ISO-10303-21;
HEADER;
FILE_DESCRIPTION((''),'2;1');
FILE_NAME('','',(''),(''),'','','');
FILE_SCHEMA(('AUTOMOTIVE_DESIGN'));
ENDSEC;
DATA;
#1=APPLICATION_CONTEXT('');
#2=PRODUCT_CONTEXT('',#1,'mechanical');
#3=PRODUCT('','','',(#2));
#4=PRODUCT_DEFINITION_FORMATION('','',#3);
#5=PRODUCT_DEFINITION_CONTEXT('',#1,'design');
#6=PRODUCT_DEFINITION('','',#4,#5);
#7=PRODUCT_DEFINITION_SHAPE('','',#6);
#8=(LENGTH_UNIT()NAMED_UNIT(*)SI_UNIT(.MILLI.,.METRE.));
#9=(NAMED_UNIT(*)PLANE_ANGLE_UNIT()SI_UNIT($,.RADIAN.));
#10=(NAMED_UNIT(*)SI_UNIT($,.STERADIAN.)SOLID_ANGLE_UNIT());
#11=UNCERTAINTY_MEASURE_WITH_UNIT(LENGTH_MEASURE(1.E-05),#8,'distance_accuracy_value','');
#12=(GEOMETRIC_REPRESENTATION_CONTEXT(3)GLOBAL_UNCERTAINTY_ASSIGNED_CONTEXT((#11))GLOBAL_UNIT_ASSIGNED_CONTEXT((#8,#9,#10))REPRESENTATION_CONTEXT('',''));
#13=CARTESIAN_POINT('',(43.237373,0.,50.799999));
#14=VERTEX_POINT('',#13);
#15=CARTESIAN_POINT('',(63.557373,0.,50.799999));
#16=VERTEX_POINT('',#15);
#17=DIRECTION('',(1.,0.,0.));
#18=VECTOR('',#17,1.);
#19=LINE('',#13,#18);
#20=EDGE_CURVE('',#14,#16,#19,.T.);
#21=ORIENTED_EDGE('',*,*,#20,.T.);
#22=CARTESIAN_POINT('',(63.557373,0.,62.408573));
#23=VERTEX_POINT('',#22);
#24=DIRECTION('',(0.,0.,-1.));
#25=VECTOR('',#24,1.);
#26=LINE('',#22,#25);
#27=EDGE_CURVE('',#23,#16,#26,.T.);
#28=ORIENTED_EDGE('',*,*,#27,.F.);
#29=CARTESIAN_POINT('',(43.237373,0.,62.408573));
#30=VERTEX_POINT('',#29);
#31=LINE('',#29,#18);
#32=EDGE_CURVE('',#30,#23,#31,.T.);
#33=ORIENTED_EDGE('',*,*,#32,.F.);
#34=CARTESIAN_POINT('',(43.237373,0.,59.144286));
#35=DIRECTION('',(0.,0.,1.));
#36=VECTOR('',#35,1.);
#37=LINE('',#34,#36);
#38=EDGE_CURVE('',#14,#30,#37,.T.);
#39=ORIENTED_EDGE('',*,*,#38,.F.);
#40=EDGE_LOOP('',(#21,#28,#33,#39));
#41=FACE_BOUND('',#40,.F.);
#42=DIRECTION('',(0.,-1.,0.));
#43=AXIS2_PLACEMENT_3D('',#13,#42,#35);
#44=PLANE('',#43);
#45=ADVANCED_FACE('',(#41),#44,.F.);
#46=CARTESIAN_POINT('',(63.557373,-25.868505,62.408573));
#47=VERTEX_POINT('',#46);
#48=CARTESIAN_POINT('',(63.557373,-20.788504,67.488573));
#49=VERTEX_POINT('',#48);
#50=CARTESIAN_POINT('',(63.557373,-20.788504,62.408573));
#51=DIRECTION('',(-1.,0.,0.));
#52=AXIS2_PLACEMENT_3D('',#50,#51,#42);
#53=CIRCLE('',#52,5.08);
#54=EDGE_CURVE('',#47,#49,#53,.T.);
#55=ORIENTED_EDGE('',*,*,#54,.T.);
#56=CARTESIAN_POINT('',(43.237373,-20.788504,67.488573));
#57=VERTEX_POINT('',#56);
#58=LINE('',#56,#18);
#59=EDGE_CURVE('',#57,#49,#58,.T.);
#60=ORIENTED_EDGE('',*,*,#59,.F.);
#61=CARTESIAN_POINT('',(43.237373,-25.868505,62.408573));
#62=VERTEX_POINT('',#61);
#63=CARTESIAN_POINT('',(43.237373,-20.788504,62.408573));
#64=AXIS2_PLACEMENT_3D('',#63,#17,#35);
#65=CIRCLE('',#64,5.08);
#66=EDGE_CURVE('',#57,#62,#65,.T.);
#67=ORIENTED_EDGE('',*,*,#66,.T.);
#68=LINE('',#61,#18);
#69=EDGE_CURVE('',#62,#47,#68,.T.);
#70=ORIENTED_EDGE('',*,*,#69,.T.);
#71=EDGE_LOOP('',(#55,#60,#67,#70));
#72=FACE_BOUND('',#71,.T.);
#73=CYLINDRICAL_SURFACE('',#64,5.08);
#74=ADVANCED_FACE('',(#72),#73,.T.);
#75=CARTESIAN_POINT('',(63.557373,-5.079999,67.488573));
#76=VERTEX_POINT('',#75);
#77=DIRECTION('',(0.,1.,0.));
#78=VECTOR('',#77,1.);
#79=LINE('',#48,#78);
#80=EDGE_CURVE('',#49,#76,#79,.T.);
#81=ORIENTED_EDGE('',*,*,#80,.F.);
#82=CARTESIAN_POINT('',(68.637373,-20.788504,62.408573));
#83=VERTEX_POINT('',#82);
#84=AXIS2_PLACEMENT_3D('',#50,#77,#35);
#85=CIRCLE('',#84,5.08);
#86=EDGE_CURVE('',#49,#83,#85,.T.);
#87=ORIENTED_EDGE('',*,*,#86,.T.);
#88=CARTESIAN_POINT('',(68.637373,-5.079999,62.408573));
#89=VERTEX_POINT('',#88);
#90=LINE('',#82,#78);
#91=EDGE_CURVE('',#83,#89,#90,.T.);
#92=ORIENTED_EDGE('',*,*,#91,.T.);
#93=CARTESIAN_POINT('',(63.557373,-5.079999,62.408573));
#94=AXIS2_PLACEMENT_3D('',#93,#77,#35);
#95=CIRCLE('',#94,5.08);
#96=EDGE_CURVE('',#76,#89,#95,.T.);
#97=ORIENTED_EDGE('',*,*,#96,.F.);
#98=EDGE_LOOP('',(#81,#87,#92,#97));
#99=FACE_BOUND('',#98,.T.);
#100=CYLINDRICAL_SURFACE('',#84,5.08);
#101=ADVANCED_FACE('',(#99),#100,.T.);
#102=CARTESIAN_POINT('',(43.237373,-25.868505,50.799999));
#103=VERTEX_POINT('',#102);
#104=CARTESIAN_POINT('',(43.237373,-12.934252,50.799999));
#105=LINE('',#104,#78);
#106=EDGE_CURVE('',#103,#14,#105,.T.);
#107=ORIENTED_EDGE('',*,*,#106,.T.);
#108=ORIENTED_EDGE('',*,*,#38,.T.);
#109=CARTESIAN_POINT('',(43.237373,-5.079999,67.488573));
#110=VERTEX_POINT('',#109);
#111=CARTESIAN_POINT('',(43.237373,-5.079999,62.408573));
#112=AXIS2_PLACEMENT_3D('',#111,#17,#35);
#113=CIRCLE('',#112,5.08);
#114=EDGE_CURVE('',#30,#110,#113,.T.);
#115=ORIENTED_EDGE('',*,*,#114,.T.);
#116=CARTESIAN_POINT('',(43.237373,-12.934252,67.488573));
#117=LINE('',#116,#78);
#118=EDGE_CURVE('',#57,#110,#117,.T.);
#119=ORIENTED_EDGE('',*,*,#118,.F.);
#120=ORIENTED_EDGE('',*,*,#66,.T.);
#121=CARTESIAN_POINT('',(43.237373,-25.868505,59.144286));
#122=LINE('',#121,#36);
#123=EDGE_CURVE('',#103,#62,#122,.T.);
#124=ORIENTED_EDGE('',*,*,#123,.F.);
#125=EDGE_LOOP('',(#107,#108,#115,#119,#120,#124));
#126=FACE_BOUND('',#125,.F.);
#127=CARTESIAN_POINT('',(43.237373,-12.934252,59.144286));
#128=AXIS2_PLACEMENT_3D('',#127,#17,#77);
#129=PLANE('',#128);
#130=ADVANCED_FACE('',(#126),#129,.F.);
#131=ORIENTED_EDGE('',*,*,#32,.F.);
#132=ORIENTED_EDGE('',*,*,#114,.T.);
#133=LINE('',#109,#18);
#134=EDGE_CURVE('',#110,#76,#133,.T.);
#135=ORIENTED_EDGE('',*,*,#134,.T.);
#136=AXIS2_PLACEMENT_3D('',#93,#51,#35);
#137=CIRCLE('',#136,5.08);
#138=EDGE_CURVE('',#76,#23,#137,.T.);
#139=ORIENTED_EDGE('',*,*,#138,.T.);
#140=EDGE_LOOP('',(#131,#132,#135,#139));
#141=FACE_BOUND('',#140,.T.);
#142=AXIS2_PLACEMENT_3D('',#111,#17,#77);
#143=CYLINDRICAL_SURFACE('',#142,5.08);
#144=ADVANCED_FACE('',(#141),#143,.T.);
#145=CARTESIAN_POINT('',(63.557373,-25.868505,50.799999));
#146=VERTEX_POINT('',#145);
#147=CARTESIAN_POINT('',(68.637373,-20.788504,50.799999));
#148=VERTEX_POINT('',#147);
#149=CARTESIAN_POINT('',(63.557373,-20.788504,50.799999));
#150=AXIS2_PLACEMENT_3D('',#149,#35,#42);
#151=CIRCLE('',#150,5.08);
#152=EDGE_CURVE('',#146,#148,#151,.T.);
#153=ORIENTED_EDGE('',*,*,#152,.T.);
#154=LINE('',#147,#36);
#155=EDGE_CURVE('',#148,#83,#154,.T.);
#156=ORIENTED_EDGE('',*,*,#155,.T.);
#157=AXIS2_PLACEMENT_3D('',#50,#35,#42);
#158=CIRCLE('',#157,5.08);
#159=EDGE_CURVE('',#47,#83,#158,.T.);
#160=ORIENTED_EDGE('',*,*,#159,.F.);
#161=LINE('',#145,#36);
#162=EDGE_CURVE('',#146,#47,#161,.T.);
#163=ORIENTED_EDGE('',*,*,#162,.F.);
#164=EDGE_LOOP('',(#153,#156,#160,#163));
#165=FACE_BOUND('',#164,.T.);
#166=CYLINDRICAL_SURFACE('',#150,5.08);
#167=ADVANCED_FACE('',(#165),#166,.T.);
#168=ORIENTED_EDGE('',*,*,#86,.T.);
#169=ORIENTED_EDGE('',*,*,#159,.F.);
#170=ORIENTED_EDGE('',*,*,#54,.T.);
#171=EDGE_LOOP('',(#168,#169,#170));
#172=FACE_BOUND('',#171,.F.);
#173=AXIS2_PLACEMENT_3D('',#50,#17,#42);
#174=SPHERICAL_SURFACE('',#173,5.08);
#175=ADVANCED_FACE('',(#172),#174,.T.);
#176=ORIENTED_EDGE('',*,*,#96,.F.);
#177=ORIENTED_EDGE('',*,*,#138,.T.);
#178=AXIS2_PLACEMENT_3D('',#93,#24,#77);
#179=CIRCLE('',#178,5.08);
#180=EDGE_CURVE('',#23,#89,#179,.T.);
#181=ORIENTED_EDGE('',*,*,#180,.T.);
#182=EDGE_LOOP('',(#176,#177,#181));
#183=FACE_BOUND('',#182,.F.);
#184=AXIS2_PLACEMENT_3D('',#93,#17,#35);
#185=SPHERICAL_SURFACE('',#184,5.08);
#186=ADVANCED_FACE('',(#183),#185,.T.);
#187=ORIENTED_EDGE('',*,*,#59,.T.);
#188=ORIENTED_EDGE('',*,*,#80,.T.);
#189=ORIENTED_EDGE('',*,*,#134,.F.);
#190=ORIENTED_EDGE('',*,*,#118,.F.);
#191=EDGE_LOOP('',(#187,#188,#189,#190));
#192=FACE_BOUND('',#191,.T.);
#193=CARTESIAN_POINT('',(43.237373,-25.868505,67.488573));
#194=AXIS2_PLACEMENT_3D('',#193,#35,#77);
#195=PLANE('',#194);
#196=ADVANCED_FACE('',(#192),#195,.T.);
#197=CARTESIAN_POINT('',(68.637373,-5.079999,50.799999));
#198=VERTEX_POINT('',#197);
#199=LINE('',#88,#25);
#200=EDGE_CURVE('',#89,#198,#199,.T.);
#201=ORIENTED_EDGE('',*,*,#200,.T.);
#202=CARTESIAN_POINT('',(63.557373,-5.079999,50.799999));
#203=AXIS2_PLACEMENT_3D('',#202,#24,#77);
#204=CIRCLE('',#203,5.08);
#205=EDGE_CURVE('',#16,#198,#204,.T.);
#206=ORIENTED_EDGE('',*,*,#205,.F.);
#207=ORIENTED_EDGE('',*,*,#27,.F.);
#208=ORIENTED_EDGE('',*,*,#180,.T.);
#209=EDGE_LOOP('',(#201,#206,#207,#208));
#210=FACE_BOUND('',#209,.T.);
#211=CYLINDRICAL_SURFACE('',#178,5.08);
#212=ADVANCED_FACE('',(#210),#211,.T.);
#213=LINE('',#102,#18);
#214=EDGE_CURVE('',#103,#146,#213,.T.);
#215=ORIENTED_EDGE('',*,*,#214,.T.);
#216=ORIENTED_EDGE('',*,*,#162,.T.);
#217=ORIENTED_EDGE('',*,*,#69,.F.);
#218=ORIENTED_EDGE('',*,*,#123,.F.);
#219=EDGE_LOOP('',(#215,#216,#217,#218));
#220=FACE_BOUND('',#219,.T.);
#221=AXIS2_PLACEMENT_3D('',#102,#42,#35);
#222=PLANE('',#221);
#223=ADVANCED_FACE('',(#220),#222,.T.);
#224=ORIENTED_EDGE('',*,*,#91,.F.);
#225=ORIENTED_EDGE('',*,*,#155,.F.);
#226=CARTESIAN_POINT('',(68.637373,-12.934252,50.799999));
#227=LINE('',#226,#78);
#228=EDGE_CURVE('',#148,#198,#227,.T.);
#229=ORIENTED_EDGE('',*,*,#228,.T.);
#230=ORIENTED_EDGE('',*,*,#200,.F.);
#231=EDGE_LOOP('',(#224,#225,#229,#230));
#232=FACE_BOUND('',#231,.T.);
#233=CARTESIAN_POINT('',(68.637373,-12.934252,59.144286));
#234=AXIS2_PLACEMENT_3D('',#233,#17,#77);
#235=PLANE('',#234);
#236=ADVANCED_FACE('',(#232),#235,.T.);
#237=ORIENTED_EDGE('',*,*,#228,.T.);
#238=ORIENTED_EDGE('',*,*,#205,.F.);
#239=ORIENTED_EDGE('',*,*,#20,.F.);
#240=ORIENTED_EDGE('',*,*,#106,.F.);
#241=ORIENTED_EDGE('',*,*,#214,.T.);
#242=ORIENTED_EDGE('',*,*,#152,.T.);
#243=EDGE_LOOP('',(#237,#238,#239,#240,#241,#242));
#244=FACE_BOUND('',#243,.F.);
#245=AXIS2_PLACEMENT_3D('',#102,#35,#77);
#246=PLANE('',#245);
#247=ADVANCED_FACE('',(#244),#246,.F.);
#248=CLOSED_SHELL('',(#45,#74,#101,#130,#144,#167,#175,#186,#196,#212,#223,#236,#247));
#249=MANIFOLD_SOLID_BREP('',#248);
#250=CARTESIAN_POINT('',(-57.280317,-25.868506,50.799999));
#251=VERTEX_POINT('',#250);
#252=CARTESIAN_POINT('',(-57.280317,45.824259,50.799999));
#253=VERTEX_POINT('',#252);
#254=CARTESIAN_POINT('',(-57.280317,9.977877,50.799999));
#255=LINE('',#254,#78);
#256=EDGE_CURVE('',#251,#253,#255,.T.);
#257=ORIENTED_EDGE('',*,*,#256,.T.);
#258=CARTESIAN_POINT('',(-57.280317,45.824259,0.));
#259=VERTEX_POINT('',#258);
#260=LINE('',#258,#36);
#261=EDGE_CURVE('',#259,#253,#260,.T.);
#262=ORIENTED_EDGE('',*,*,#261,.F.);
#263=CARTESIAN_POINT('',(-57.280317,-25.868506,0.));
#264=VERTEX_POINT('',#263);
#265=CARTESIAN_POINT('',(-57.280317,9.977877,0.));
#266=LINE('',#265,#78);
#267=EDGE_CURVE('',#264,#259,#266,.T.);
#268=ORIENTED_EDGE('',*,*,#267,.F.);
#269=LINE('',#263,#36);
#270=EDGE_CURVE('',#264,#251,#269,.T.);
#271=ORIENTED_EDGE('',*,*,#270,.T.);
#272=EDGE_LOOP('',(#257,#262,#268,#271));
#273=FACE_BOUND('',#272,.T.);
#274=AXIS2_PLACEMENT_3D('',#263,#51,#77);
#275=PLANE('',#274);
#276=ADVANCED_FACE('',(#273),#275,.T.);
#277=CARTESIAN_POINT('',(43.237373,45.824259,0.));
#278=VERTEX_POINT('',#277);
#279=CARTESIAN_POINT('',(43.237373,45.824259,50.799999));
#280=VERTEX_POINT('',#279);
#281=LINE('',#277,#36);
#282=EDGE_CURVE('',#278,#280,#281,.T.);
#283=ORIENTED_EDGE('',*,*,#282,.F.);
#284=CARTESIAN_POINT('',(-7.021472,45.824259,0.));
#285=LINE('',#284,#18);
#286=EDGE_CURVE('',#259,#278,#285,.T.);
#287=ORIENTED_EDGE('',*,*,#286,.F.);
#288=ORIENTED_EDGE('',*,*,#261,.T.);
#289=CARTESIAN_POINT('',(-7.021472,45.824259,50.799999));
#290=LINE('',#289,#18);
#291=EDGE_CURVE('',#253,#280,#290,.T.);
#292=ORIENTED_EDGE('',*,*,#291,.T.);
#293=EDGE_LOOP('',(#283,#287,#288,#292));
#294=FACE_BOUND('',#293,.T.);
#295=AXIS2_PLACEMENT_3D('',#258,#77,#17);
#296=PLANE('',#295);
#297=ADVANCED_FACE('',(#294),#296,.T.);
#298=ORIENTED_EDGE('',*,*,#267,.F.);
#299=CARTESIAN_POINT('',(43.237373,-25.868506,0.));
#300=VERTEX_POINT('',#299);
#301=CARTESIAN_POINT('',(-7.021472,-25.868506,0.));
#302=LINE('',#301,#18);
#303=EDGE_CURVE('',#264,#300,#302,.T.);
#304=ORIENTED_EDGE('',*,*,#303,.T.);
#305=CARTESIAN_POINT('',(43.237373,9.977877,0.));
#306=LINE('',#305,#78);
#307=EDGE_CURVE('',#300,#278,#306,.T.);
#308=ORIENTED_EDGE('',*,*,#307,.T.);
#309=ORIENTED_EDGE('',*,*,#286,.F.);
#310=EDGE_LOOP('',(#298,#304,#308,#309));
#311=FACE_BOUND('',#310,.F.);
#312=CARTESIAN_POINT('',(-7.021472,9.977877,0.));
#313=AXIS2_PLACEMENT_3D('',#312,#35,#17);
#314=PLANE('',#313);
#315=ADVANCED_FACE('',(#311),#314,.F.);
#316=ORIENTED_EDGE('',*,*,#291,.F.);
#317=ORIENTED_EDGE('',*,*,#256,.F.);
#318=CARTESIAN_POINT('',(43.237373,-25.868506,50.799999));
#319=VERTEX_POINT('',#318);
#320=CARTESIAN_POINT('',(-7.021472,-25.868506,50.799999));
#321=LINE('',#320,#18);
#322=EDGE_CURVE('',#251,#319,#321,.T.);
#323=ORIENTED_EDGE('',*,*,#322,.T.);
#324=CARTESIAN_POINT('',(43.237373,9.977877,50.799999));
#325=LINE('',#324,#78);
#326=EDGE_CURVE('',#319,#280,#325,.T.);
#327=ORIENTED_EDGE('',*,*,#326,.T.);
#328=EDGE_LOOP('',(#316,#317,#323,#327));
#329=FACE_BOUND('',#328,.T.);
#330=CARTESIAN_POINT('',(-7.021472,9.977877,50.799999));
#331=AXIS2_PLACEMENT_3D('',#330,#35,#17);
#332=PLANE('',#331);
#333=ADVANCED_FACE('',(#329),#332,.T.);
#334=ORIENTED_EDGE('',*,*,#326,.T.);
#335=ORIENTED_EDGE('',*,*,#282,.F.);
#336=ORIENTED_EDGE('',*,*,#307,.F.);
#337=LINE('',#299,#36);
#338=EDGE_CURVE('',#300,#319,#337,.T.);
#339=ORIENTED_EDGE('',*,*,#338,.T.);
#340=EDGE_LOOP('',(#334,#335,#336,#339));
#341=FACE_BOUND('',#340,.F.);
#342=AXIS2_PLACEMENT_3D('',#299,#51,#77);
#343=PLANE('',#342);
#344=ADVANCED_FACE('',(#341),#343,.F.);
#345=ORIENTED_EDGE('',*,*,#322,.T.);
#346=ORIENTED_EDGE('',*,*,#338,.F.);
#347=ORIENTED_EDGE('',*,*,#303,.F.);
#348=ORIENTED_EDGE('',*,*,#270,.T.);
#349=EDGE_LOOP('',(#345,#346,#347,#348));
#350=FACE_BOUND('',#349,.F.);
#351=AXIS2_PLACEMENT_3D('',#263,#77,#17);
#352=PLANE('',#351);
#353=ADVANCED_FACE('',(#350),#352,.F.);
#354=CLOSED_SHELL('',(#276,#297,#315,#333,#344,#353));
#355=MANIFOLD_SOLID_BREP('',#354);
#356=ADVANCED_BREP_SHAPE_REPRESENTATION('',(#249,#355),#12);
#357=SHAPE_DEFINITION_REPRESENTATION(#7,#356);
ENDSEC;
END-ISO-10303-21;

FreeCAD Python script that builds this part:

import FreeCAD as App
import Part
import Sketcher
from FreeCAD import Vector
Q = App.Units.Quantity


def edges_at(feature, points):
    """Names of the edges that pass closest to the given points."""
    edges = feature.Shape.Edges
    near = lambda p: min(range(len(edges)), key=lambda i: edges[i].distToShape(Part.Vertex(*p))[0])
    return sorted({f"Edge{near(p) + 1}" for p in points})


def add_polygon(sketch, points):
    """Adds a closed chain of lines whose ends are joined by coincident constraints."""
    first, n = sketch.GeometryCount, len(points)
    for a, b in zip(points, points[1:] + points[:1]):
        sketch.addGeometry(Part.LineSegment(App.Vector(*a, 0), App.Vector(*b, 0)), False)
    for i in range(n):
        sketch.addConstraint(Sketcher.Constraint("Coincident", first + i, 2, first + (i + 1) % n, 1))

doc = App.newDocument("Part")
body = doc.addObject("PartDesign::Body", "Body")

# Sketch on XY plane
sketch1 = doc.addObject("Sketcher::SketchObject", "Sketch")
body.addObject(sketch1)
sketch1.AttachmentSupport = (doc.XY_Plane, [""])
sketch1.MapMode = "FlatFace"
add_polygon(sketch1, [(-57, 46), (-57, -26), (43, -26), (43, 46)])  # lines 0-3
sketch1.addConstraint([
    Sketcher.Constraint("Vertical", 0),
    Sketcher.Constraint("Horizontal", 1),
    Sketcher.Constraint("Vertical", 2),
    Sketcher.Constraint("Horizontal", 3),
    Sketcher.Constraint("DistanceX", 1, 1, 1, 2, Q("100.51769 mm")),
    Sketcher.Constraint("DistanceY", 0, 2, 0, 1, Q("71.692765 mm")),
    Sketcher.Constraint("DistanceY", -1, 1, 2, 2, Q("45.824259 mm")),
    Sketcher.Constraint("DistanceX", 0, 2, -1, 1, Q("57.280317 mm")),
])
pad1 = doc.addObject("PartDesign::Pad", "Pad")
body.addObject(pad1)
pad1.Profile = sketch1
pad1.Length = Q("2 in")
body2 = doc.addObject("PartDesign::Body", "Body001")

# Sketch on YZ plane
sketch2 = doc.addObject("Sketcher::SketchObject", "Sketch001")
body2.addObject(sketch2)
sketch2.AttachmentSupport = (doc.getObject("YZ_Plane001"), [""])
sketch2.MapMode = "FlatFace"
sketch2.AttachmentOffset = App.Placement(Vector(0, 0, 43.237373), App.Rotation())
add_polygon(sketch2, [(-26, 67), (-26, 51), (0, 51), (0, 67)])  # lines 0-3
sketch2.addConstraint([
    Sketcher.Constraint("Vertical", 0),
    Sketcher.Constraint("Horizontal", 1),
    Sketcher.Constraint("Vertical", 2),
    Sketcher.Constraint("Horizontal", 3),
    Sketcher.Constraint("PointOnObject", 1, 2, -2),
    Sketcher.Constraint("DistanceY", -1, 1, 0, 2, Q("2 in")),
    Sketcher.Constraint("DistanceX", 1, 1, 1, 2, Q("25.868505 mm")),
    Sketcher.Constraint("DistanceY", 0, 2, 0, 1, Q("16.688574 mm")),
])
pad2 = doc.addObject("PartDesign::Pad", "Pad001")
body2.addObject(pad2)
pad2.Profile = sketch2
pad2.Length = Q("1 in")
doc.recompute()

fillet = doc.addObject("PartDesign::Fillet", "Fillet")
body2.addObject(fillet)
fillet.Base = (pad2, edges_at(pad2, [(55.937, 0, 67.489)]))
fillet.Radius = Q("0.2 in")
doc.recompute()

fillet2 = doc.addObject("PartDesign::Fillet", "Fillet001")
body2.addObject(fillet2)
fillet2.Base = (fillet, edges_at(fillet, [(55.937, -25.869, 67.489)]))
fillet2.Radius = Q("0.2 in")
doc.recompute()

fillet3 = doc.addObject("PartDesign::Fillet", "Fillet002")
body2.addObject(fillet3)
fillet3.Base = (fillet2, edges_at(fillet2, [(68.637, -12.934, 67.489)]))
fillet3.Radius = Q("0.2 in")

doc.recompute()
